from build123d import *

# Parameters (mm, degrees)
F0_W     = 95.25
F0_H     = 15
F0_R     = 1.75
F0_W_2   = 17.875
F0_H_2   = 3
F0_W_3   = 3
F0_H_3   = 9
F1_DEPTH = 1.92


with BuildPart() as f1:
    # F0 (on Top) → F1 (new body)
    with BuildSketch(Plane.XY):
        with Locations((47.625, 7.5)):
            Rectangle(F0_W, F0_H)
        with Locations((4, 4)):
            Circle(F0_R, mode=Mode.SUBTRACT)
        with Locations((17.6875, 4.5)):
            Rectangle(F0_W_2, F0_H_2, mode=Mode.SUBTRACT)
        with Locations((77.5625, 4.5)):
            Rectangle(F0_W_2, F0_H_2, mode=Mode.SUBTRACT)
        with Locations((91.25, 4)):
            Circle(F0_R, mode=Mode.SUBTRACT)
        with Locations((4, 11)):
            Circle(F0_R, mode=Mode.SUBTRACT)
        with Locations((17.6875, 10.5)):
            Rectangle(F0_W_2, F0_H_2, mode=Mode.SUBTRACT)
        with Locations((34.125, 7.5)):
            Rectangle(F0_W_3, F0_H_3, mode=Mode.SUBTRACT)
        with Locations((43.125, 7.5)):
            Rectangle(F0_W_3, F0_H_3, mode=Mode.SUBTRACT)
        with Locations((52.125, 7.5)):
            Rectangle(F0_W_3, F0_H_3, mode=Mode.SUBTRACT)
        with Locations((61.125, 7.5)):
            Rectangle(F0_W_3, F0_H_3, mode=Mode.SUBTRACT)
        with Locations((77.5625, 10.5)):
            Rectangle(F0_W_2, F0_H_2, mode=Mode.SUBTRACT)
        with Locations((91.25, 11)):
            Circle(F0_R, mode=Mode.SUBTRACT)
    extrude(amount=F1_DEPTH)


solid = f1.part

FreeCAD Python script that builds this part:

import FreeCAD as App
import Part
import Sketcher
from FreeCAD import Vector

doc = App.newDocument("Part")
params = doc.addObject("Spreadsheet::Sheet", "Params")
for row, (alias, value) in enumerate([
    ("sketch1_diameter", "3.5 mm"),
    ("sketch1_width", "3 mm"),
    ("sketch1_height", "15 mm"),
    ("sketch1_height2", "9 mm"),
    ("sketch1_width2", "95.25 mm"),
    ("pad1_length", "1.92 mm"),
], start=1):
    params.set(f"A{row}", alias)
    params.set(f"B{row}", "=" + value)
    params.setAlias(f"B{row}", alias)

body = doc.addObject("PartDesign::Body", "Body")

sketch1 = doc.addObject("Sketcher::SketchObject", "Sketch")
body.addObject(sketch1)
sketch1.AttachmentSupport = (doc.XY_Plane, [""])
sketch1.MapMode = "FlatFace"
sketch1.addGeometry(Part.LineSegment(Vector(0, 15, 0), Vector(0, 0, 0)), False)
sketch1.addGeometry(Part.LineSegment(Vector(0, 0, 0), Vector(95.2, 0, 0)), False)
sketch1.addGeometry(Part.LineSegment(Vector(95.2, 0, 0), Vector(95.2, 15, 0)), False)
sketch1.addGeometry(Part.LineSegment(Vector(95.2, 15, 0), Vector(0, 15, 0)), False)
sketch1.addGeometry(Part.Circle(Vector(4, 4, 0), Vector(0, 0, 1), 1.8), False)
sketch1.addGeometry(Part.LineSegment(Vector(26.6, 3, 0), Vector(8.8, 3, 0)), False)
sketch1.addGeometry(Part.LineSegment(Vector(8.8, 3, 0), Vector(8.8, 6, 0)), False)
sketch1.addGeometry(Part.LineSegment(Vector(8.8, 6, 0), Vector(26.6, 6, 0)), False)
sketch1.addGeometry(Part.LineSegment(Vector(26.6, 6, 0), Vector(26.6, 3, 0)), False)
sketch1.addGeometry(Part.LineSegment(Vector(86.5, 3, 0), Vector(68.6, 3, 0)), False)
sketch1.addGeometry(Part.LineSegment(Vector(68.6, 3, 0), Vector(68.6, 6, 0)), False)
sketch1.addGeometry(Part.LineSegment(Vector(68.6, 6, 0), Vector(86.5, 6, 0)), False)
sketch1.addGeometry(Part.LineSegment(Vector(86.5, 6, 0), Vector(86.5, 3, 0)), False)
sketch1.addGeometry(Part.Circle(Vector(91.2, 4, 0), Vector(0, 0, 1), 1.8), False)
sketch1.addGeometry(Part.LineSegment(Vector(35.6, 3, 0), Vector(32.6, 3, 0)), False)
sketch1.addGeometry(Part.LineSegment(Vector(32.6, 3, 0), Vector(32.6, 12, 0)), False)
sketch1.addGeometry(Part.LineSegment(Vector(32.6, 12, 0), Vector(35.6, 12, 0)), False)
sketch1.addGeometry(Part.LineSegment(Vector(35.6, 12, 0), Vector(35.6, 3, 0)), False)
sketch1.addGeometry(Part.LineSegment(Vector(44.6, 3, 0), Vector(41.6, 3, 0)), False)
sketch1.addGeometry(Part.LineSegment(Vector(41.6, 3, 0), Vector(41.6, 12, 0)), False)
sketch1.addGeometry(Part.LineSegment(Vector(41.6, 12, 0), Vector(44.6, 12, 0)), False)
sketch1.addGeometry(Part.LineSegment(Vector(44.6, 12, 0), Vector(44.6, 3, 0)), False)
sketch1.addGeometry(Part.Circle(Vector(4, 11, 0), Vector(0, 0, 1), 1.8), False)
sketch1.addGeometry(Part.LineSegment(Vector(26.6, 9, 0), Vector(8.8, 9, 0)), False)
sketch1.addGeometry(Part.LineSegment(Vector(8.8, 9, 0), Vector(8.8, 12, 0)), False)
sketch1.addGeometry(Part.LineSegment(Vector(8.8, 12, 0), Vector(26.6, 12, 0)), False)
sketch1.addGeometry(Part.LineSegment(Vector(26.6, 12, 0), Vector(26.6, 9, 0)), False)
sketch1.addGeometry(Part.LineSegment(Vector(53.6, 3, 0), Vector(50.6, 3, 0)), False)
sketch1.addGeometry(Part.LineSegment(Vector(50.6, 3, 0), Vector(50.6, 12, 0)), False)
sketch1.addGeometry(Part.LineSegment(Vector(50.6, 12, 0), Vector(53.6, 12, 0)), False)
sketch1.addGeometry(Part.LineSegment(Vector(53.6, 12, 0), Vector(53.6, 3, 0)), False)
sketch1.addGeometry(Part.LineSegment(Vector(62.6, 3, 0), Vector(59.6, 3, 0)), False)
sketch1.addGeometry(Part.LineSegment(Vector(59.6, 3, 0), Vector(59.6, 12, 0)), False)
sketch1.addGeometry(Part.LineSegment(Vector(59.6, 12, 0), Vector(62.6, 12, 0)), False)
sketch1.addGeometry(Part.LineSegment(Vector(62.6, 12, 0), Vector(62.6, 3, 0)), False)
sketch1.addGeometry(Part.LineSegment(Vector(86.5, 9, 0), Vector(68.6, 9, 0)), False)
sketch1.addGeometry(Part.LineSegment(Vector(68.6, 9, 0), Vector(68.6, 12, 0)), False)
sketch1.addGeometry(Part.LineSegment(Vector(68.6, 12, 0), Vector(86.5, 12, 0)), False)
sketch1.addGeometry(Part.LineSegment(Vector(86.5, 12, 0), Vector(86.5, 9, 0)), False)
sketch1.addGeometry(Part.Circle(Vector(91.2, 11, 0), Vector(0, 0, 1), 1.8), False)
sketch1.addConstraint(Sketcher.Constraint("Coincident", 0, 2, 1, 1))
sketch1.addConstraint(Sketcher.Constraint("Coincident", 1, 2, 2, 1))
sketch1.addConstraint(Sketcher.Constraint("Coincident", 2, 2, 3, 1))
sketch1.addConstraint(Sketcher.Constraint("Coincident", 3, 2, 0, 1))
sketch1.addConstraint(Sketcher.Constraint("Coincident", 5, 2, 6, 1))
sketch1.addConstraint(Sketcher.Constraint("Coincident", 6, 2, 7, 1))
sketch1.addConstraint(Sketcher.Constraint("Coincident", 7, 2, 8, 1))
sketch1.addConstraint(Sketcher.Constraint("Coincident", 8, 2, 5, 1))
sketch1.addConstraint(Sketcher.Constraint("Coincident", 9, 2, 10, 1))
sketch1.addConstraint(Sketcher.Constraint("Coincident", 10, 2, 11, 1))
sketch1.addConstraint(Sketcher.Constraint("Coincident", 11, 2, 12, 1))
sketch1.addConstraint(Sketcher.Constraint("Coincident", 12, 2, 9, 1))
sketch1.addConstraint(Sketcher.Constraint("Coincident", 14, 2, 15, 1))
sketch1.addConstraint(Sketcher.Constraint("Coincident", 15, 2, 16, 1))
sketch1.addConstraint(Sketcher.Constraint("Coincident", 16, 2, 17, 1))
sketch1.addConstraint(Sketcher.Constraint("Coincident", 17, 2, 14, 1))
sketch1.addConstraint(Sketcher.Constraint("Coincident", 18, 2, 19, 1))
sketch1.addConstraint(Sketcher.Constraint("Coincident", 19, 2, 20, 1))
sketch1.addConstraint(Sketcher.Constraint("Coincident", 20, 2, 21, 1))
sketch1.addConstraint(Sketcher.Constraint("Coincident", 21, 2, 18, 1))
sketch1.addConstraint(Sketcher.Constraint("Coincident", 23, 2, 24, 1))
sketch1.addConstraint(Sketcher.Constraint("Coincident", 24, 2, 25, 1))
sketch1.addConstraint(Sketcher.Constraint("Coincident", 25, 2, 26, 1))
sketch1.addConstraint(Sketcher.Constraint("Coincident", 26, 2, 23, 1))
sketch1.addConstraint(Sketcher.Constraint("Coincident", 27, 2, 28, 1))
sketch1.addConstraint(Sketcher.Constraint("Coincident", 28, 2, 29, 1))
sketch1.addConstraint(Sketcher.Constraint("Coincident", 29, 2, 30, 1))
sketch1.addConstraint(Sketcher.Constraint("Coincident", 30, 2, 27, 1))
sketch1.addConstraint(Sketcher.Constraint("Coincident", 31, 2, 32, 1))
sketch1.addConstraint(Sketcher.Constraint("Coincident", 32, 2, 33, 1))
sketch1.addConstraint(Sketcher.Constraint("Coincident", 33, 2, 34, 1))
sketch1.addConstraint(Sketcher.Constraint("Coincident", 34, 2, 31, 1))
sketch1.addConstraint(Sketcher.Constraint("Coincident", 35, 2, 36, 1))
sketch1.addConstraint(Sketcher.Constraint("Coincident", 36, 2, 37, 1))
sketch1.addConstraint(Sketcher.Constraint("Coincident", 37, 2, 38, 1))
sketch1.addConstraint(Sketcher.Constraint("Coincident", 38, 2, 35, 1))
sketch1.addConstraint(Sketcher.Constraint("Vertical", 0))
sketch1.addConstraint(Sketcher.Constraint("Horizontal", 1))
sketch1.addConstraint(Sketcher.Constraint("Vertical", 2))
sketch1.addConstraint(Sketcher.Constraint("Horizontal", 3))
sketch1.addConstraint(Sketcher.Constraint("Horizontal", 5))
sketch1.addConstraint(Sketcher.Constraint("Vertical", 6))
sketch1.addConstraint(Sketcher.Constraint("Horizontal", 7))
sketch1.addConstraint(Sketcher.Constraint("Vertical", 8))
sketch1.addConstraint(Sketcher.Constraint("Horizontal", 9))
sketch1.addConstraint(Sketcher.Constraint("Vertical", 10))
sketch1.addConstraint(Sketcher.Constraint("Horizontal", 11))
sketch1.addConstraint(Sketcher.Constraint("Vertical", 12))
sketch1.addConstraint(Sketcher.Constraint("Horizontal", 14))
sketch1.addConstraint(Sketcher.Constraint("Vertical", 15))
sketch1.addConstraint(Sketcher.Constraint("Horizontal", 16))
sketch1.addConstraint(Sketcher.Constraint("Vertical", 17))
sketch1.addConstraint(Sketcher.Constraint("Horizontal", 18))
sketch1.addConstraint(Sketcher.Constraint("Vertical", 19))
sketch1.addConstraint(Sketcher.Constraint("Horizontal", 20))
sketch1.addConstraint(Sketcher.Constraint("Vertical", 21))
sketch1.addConstraint(Sketcher.Constraint("Horizontal", 23))
sketch1.addConstraint(Sketcher.Constraint("Vertical", 24))
sketch1.addConstraint(Sketcher.Constraint("Horizontal", 25))
sketch1.addConstraint(Sketcher.Constraint("Vertical", 26))
sketch1.addConstraint(Sketcher.Constraint("Horizontal", 27))
sketch1.addConstraint(Sketcher.Constraint("Vertical", 28))
sketch1.addConstraint(Sketcher.Constraint("Horizontal", 29))
sketch1.addConstraint(Sketcher.Constraint("Vertical", 30))
sketch1.addConstraint(Sketcher.Constraint("Horizontal", 31))
sketch1.addConstraint(Sketcher.Constraint("Vertical", 32))
sketch1.addConstraint(Sketcher.Constraint("Horizontal", 33))
sketch1.addConstraint(Sketcher.Constraint("Vertical", 34))
sketch1.addConstraint(Sketcher.Constraint("Horizontal", 35))
sketch1.addConstraint(Sketcher.Constraint("Vertical", 36))
sketch1.addConstraint(Sketcher.Constraint("Horizontal", 37))
sketch1.addConstraint(Sketcher.Constraint("Vertical", 38))
sketch1.addConstraint(Sketcher.Constraint("Coincident", 0, 2, -1, 1))
sketch1.addConstraint(Sketcher.Constraint("Equal", 4, 13))
sketch1.addConstraint(Sketcher.Constraint("Equal", 13, 22))
sketch1.addConstraint(Sketcher.Constraint("Equal", 22, 39))
sketch1.addConstraint(Sketcher.Constraint("Horizontal", 4, 3, 13, 3))
sketch1.addConstraint(Sketcher.Constraint("Horizontal", 22, 3, 39, 3))
sketch1.addConstraint(Sketcher.Constraint("Horizontal", 8, 2, 9, 2))
sketch1.addConstraint(Sketcher.Constraint("Horizontal", 7, 2, 10, 2))
sketch1.addConstraint(Sketcher.Constraint("Horizontal", 12, 2, 14, 2))
sketch1.addConstraint(Sketcher.Constraint("Horizontal", 17, 2, 18, 2))
sketch1.addConstraint(Sketcher.Constraint("Horizontal", 16, 2, 19, 2))
sketch1.addConstraint(Sketcher.Constraint("Horizontal", 20, 2, 24, 2))
sketch1.addConstraint(Sketcher.Constraint("Horizontal", 21, 2, 27, 2))
sketch1.addConstraint(Sketcher.Constraint("Horizontal", 25, 2, 28, 2))
sketch1.addConstraint(Sketcher.Constraint("Horizontal", 30, 2, 31, 2))
sketch1.addConstraint(Sketcher.Constraint("Horizontal", 29, 2, 32, 2))
sketch1.addConstraint(Sketcher.Constraint("Horizontal", 26, 2, 35, 2))
sketch1.addConstraint(Sketcher.Constraint("Horizontal", 33, 2, 36, 2))
sketch1.addConstraint(Sketcher.Constraint("Vertical", 4, 3, 22, 3))
sketch1.addConstraint(Sketcher.Constraint("Vertical", 13, 3, 39, 3))
sketch1.addConstraint(Sketcher.Constraint("Vertical", 6, 2, 23, 2))
sketch1.addConstraint(Sketcher.Constraint("Vertical", 8, 2, 25, 2))
sketch1.addConstraint(Sketcher.Constraint("Vertical", 10, 2, 35, 2))
sketch1.addConstraint(Sketcher.Constraint("Vertical", 12, 2, 37, 2))
sketch1.addConstraint(Sketcher.Constraint("Equal", 7, 9))
sketch1.addConstraint(Sketcher.Constraint("Equal", 16, 18))
sketch1.addConstraint(Sketcher.Constraint("Equal", 20, 27))
sketch1.addConstraint(Sketcher.Constraint("Equal", 29, 31))
sketch1.addConstraint(Sketcher.Constraint("Equal", 33, 6))
sketch1.addConstraint(Sketcher.Constraint("Equal", 12, 24))
sketch1.addConstraint(Sketcher.Constraint("Diameter", 4, 3.5))
sketch1.addConstraint(Sketcher.Constraint("DistanceX", 14, 2, 14, 1, 3.0))
sketch1.addConstraint(Sketcher.Constraint("DistanceY", 0, 2, 0, 1, 15.0))
sketch1.addConstraint(Sketcher.Constraint("DistanceY", 15, 1, 15, 2, 9.0))
sketch1.addConstraint(Sketcher.Constraint("DistanceX", -1, 1, 4, 3, 4.0))
sketch1.addConstraint(Sketcher.Constraint("DistanceY", -1, 1, 4, 3, 4.0))
sketch1.addConstraint(Sketcher.Constraint("DistanceY", -1, 1, 22, 3, 11.0))
sketch1.addConstraint(Sketcher.Constraint("DistanceY", -1, 1, 5, 2, 3.0))
sketch1.addConstraint(Sketcher.Constraint("DistanceX", 13, 3, 1, 2, 4.0))
sketch1.addConstraint(Sketcher.Constraint("DistanceX", 8, 2, 9, 2, 42.0))
sketch1.addConstraint(Sketcher.Constraint("DistanceX", 8, 2, 14, 2, 6.0))
sketch1.addConstraint(Sketcher.Constraint("DistanceX", 17, 2, 18, 2, 6.0))
sketch1.addConstraint(Sketcher.Constraint("DistanceX", 21, 2, 27, 2, 6.0))
sketch1.addConstraint(Sketcher.Constraint("DistanceX", 30, 2, 31, 2, 6.0))
sketch1.addConstraint(Sketcher.Constraint("DistanceX", 1, 1, 1, 2, 95.25))
sketch1.addConstraint(Sketcher.Constraint("DistanceX", -1, 1, 11, 2, 86.5))
sketch1.addConstraint(Sketcher.Constraint("DistanceX", 5, 2, 13, 3, 82.5))
sketch1.setExpression("Constraints[102]", "Params.sketch1_diameter")
sketch1.setExpression("Constraints[103]", "Params.sketch1_width")
sketch1.setExpression("Constraints[104]", "Params.sketch1_height")
sketch1.setExpression("Constraints[105]", "Params.sketch1_height2")
sketch1.setExpression("Constraints[116]", "Params.sketch1_width2")
pad1 = doc.addObject("PartDesign::Pad", "Pad")
body.addObject(pad1)
pad1.Profile = sketch1
pad1.setExpression("Length", "Params.pad1_length")

doc.recompute()
